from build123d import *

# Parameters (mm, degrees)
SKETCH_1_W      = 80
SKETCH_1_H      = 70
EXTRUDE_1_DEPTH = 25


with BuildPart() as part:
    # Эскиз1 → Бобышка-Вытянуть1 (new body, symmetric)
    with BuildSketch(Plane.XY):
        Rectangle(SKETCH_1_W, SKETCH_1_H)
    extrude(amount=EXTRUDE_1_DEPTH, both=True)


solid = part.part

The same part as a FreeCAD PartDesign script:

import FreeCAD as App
import Part
import Sketcher

V = App.Vector
Q = App.Units.Quantity

doc = App.newDocument("Part")
body = doc.addObject("PartDesign::Body", "Body")

# Sketch on XY plane
sketch1 = body.newObject("Sketcher::SketchObject", "Sketch")
sketch1.AttachmentSupport = (doc.getObject("XY_Plane"), [""])
sketch1.MapMode = "FlatFace"
sketch1.addGeometry(Part.LineSegment(V(-40, 35, 0), V(-40, -35, 0)), False)
sketch1.addGeometry(Part.LineSegment(V(-40, -35, 0), V(40, -35, 0)), False)
sketch1.addGeometry(Part.LineSegment(V(40, -35, 0), V(40, 35, 0)), False)
sketch1.addGeometry(Part.LineSegment(V(40, 35, 0), V(-40, 35, 0)), False)
sketch1.addConstraint(Sketcher.Constraint("Coincident", 0, 2, 1, 1))
sketch1.addConstraint(Sketcher.Constraint("Coincident", 1, 2, 2, 1))
sketch1.addConstraint(Sketcher.Constraint("Coincident", 2, 2, 3, 1))
sketch1.addConstraint(Sketcher.Constraint("Coincident", 3, 2, 0, 1))
sketch1.addConstraint(Sketcher.Constraint("Vertical", 0))
sketch1.addConstraint(Sketcher.Constraint("Horizontal", 1))
sketch1.addConstraint(Sketcher.Constraint("Vertical", 2))
sketch1.addConstraint(Sketcher.Constraint("Horizontal", 3))
sketch1.addConstraint(Sketcher.Constraint("Symmetric", 0, 2, 2, 2, -1, 1))
sketch1.addConstraint(Sketcher.Constraint("DistanceX", 1, 1, 1, 2, Q("80 mm")))
sketch1.addConstraint(Sketcher.Constraint("DistanceY", 0, 2, 0, 1, Q("70 mm")))
pad1 = body.newObject("PartDesign::Pad", "Pad")
pad1.Profile = sketch1
pad1.Length = 50
pad1.Midplane = True

doc.recompute()
